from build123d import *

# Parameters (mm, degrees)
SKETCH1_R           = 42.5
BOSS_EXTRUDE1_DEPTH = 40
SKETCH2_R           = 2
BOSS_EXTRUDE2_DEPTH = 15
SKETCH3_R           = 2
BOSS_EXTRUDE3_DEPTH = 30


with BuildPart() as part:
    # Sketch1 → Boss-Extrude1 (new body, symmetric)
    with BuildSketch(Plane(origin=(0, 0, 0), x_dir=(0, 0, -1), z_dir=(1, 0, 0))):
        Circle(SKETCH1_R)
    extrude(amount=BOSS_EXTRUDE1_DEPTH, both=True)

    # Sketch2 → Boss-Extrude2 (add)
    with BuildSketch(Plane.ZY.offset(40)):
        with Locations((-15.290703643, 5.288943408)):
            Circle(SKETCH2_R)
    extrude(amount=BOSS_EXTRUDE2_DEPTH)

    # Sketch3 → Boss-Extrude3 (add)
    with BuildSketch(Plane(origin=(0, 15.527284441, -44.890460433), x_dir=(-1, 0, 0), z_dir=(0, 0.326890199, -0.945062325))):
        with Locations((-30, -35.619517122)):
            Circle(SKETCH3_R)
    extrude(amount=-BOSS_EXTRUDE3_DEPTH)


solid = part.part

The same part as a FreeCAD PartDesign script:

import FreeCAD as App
import Part
import Sketcher

V = App.Vector
Q = App.Units.Quantity

doc = App.newDocument("Part")
body = doc.addObject("PartDesign::Body", "Body")

# Sketch on YZ plane
sketch1 = body.newObject("Sketcher::SketchObject", "Sketch")
sketch1.AttachmentSupport = (doc.getObject("YZ_Plane"), [""])
sketch1.MapMode = "FlatFace"
sketch1.addGeometry(Part.Circle(V(0, 0, 0), V(0, 0, 1), 42.5), False)
sketch1.addConstraint([
    Sketcher.Constraint("Coincident", 0, 3, -1, 1),
    Sketcher.Constraint("Diameter", 0, Q("85 mm")),
])
pad1 = body.newObject("PartDesign::Pad", "Pad")
pad1.Profile = sketch1
pad1.Length = 80
pad1.Midplane = True

# Sketch on YZ plane
sketch2 = body.newObject("Sketcher::SketchObject", "Sketch001")
sketch2.AttachmentSupport = (doc.getObject("YZ_Plane"), [""])
sketch2.MapMode = "FlatFace"
sketch2.AttachmentOffset = App.Placement(V(0, 0, -40), App.Rotation())
sketch2.addGeometry(Part.Circle(V(5.288943, -15.290704, 0), V(0, 0, 1), 2), False)
sketch2.addConstraint([
    Sketcher.Constraint("Diameter", 0, Q("4 mm")),
    Sketcher.Constraint("DistanceX", -1, 1, 0, 3, Q("5.288943 mm")),
    Sketcher.Constraint("DistanceY", 0, 3, -1, 1, Q("15.290704 mm")),
])
pad2 = body.newObject("PartDesign::Pad", "Pad001")
pad2.Profile = sketch2
pad2.Length = 15
pad2.Reversed = True

# Sketch on an angled plane
sketch3 = body.newObject("Sketcher::SketchObject", "Sketch002")
sketch3.Placement = App.Placement(V(0, 15.527284, -44.89046), App.Rotation(V(-1, 0, 0), V(0, 0.945062325, 0.326890199), V(0, 0.326890199, -0.945062325), "ZXY"))
sketch3.addGeometry(Part.Circle(V(-30, -35.619517, 0), V(0, 0, 1), 2), False)
sketch3.addConstraint([
    Sketcher.Constraint("Diameter", 0, Q("4 mm")),
    Sketcher.Constraint("DistanceX", 0, 3, -1, 1, Q("30 mm")),
    Sketcher.Constraint("DistanceY", 0, 3, -1, 1, Q("35.619517 mm")),
])
pad3 = body.newObject("PartDesign::Pad", "Pad002")
pad3.Profile = sketch3
pad3.Length = 30
pad3.Reversed = True

doc.recompute()
